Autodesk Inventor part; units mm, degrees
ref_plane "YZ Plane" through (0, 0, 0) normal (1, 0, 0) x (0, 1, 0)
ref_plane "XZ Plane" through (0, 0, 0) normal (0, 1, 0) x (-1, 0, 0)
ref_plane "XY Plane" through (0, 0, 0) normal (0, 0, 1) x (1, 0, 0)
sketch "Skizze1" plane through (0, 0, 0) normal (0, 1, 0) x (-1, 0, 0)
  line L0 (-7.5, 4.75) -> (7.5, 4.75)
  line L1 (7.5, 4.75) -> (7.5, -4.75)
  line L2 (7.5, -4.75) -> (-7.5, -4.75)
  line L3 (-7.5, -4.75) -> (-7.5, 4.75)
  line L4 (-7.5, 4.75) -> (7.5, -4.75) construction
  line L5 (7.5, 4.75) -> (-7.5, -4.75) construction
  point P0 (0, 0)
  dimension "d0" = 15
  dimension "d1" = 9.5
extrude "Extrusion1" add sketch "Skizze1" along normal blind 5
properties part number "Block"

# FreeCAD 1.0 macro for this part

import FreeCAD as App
import Part
import Sketcher

V = App.Vector


def add_polygon(sketch, points):
    """Adds a closed chain of lines whose ends are joined by coincident constraints."""
    first, n = sketch.GeometryCount, len(points)
    for a, b in zip(points, points[1:] + points[:1]):
        sketch.addGeometry(Part.LineSegment(App.Vector(*a, 0), App.Vector(*b, 0)), False)
    for i in range(n):
        sketch.addConstraint(Sketcher.Constraint("Coincident", first + i, 2, first + (i + 1) % n, 1))

doc = App.newDocument("Part")
body = doc.addObject("PartDesign::Body", "Body")

# Sketch on XZ plane
sketch1 = body.newObject("Sketcher::SketchObject", "Sketch")
sketch1.AttachmentSupport = (doc.getObject("XZ_Plane"), [""])
sketch1.MapMode = "FlatFace"
add_polygon(sketch1, [(-8, 5), (8, 5), (8, -5), (-8, -5)])  # lines 0-3
sketch1.addConstraint([
    Sketcher.Constraint("Horizontal", 0),
    Sketcher.Constraint("Vertical", 1),
    Sketcher.Constraint("Horizontal", 2),
    Sketcher.Constraint("Vertical", 3),
    Sketcher.Constraint("Symmetric", 0, 2, 2, 2, -1, 1),
    Sketcher.Constraint("DistanceX", 0, 1, 0, 2, 15.0),
    Sketcher.Constraint("DistanceY", 1, 2, 1, 1, 9.5),
])
pad1 = body.newObject("PartDesign::Pad", "Pad")
pad1.Profile = sketch1
pad1.Length = 5
pad1.Reversed = True

doc.recompute()
